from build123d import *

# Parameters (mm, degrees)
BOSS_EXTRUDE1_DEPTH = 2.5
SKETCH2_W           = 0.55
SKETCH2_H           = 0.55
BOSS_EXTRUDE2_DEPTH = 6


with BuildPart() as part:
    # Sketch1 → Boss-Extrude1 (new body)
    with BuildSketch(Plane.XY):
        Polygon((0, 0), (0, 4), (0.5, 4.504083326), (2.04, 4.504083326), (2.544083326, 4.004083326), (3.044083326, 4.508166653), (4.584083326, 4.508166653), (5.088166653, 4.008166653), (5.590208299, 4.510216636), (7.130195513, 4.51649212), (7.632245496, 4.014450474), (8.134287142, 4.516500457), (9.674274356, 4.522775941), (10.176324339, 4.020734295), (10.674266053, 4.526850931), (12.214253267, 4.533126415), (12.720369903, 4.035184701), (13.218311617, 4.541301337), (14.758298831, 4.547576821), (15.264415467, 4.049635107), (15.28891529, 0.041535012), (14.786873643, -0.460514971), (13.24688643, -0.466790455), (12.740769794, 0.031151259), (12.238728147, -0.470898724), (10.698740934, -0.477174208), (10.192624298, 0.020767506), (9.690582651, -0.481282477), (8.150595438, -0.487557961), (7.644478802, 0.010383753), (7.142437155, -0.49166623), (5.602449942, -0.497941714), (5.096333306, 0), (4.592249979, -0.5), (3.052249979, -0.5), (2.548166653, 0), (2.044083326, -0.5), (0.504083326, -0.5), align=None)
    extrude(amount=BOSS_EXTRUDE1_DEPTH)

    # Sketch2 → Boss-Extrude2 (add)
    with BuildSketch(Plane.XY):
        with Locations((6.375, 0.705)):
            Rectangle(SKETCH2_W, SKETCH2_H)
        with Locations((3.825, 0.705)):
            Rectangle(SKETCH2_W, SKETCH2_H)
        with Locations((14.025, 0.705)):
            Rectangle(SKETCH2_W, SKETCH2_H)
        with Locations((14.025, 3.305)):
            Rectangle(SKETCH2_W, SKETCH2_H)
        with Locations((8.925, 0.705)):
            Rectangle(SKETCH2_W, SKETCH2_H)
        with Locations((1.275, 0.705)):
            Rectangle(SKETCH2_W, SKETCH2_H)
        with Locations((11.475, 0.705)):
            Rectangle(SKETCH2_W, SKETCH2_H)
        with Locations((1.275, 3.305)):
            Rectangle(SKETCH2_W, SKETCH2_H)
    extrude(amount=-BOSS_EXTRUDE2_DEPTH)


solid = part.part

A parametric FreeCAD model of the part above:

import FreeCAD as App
import Part
import Sketcher

V = App.Vector
Q = App.Units.Quantity

doc = App.newDocument("Part")
body = doc.addObject("PartDesign::Body", "Body")

sketch1 = body.newObject("Sketcher::SketchObject", "Sketch")
sketch1.AttachmentSupport = (doc.getObject("XY_Plane"), [""])
sketch1.MapMode = "FlatFace"
sketch1.addGeometry([
    Part.LineSegment(V(0, 4, 0), V(0, 0, 0)),
    Part.LineSegment(V(0, 0, 0), V(0.5, -0.5, 0)),
    Part.LineSegment(V(0.5, -0.5, 0), V(2, -0.5, 0)),
    Part.LineSegment(V(2, -0.5, 0), V(2.5, 0, 0)),
    Part.LineSegment(V(2.5, 0, 0), V(3.1, -0.5, 0)),
    Part.LineSegment(V(3.1, -0.5, 0), V(4.6, -0.5, 0)),
    Part.LineSegment(V(4.6, -0.5, 0), V(5.1, 0, 0)),
    Part.LineSegment(V(5.1, 0, 0), V(5.6, -0.5, 0)),
    Part.LineSegment(V(5.6, -0.5, 0), V(7.1, -0.5, 0)),
    Part.LineSegment(V(7.1, -0.5, 0), V(7.6, 0, 0)),
    Part.LineSegment(V(7.6, 0, 0), V(8.2, -0.5, 0)),
    Part.LineSegment(V(8.2, -0.5, 0), V(9.7, -0.5, 0)),
    Part.LineSegment(V(9.7, -0.5, 0), V(10.2, 0, 0)),
    Part.LineSegment(V(10.2, 0, 0), V(10.7, -0.5, 0)),
    Part.LineSegment(V(10.7, -0.5, 0), V(12.2, -0.5, 0)),
    Part.LineSegment(V(12.2, -0.5, 0), V(12.7, 0, 0)),
    Part.LineSegment(V(12.7, 0, 0), V(13.2, -0.5, 0)),
    Part.LineSegment(V(13.2, -0.5, 0), V(14.8, -0.5, 0)),
    Part.LineSegment(V(14.8, -0.5, 0), V(15.3, 0, 0)),
    Part.LineSegment(V(15.3, 0, 0), V(15.3, 4, 0)),
    Part.LineSegment(V(15.3, 4, 0), V(14.8, 4.5, 0)),
    Part.LineSegment(V(14.8, 4.5, 0), V(13.2, 4.5, 0)),
    Part.LineSegment(V(13.2, 4.5, 0), V(12.7, 4, 0)),
    Part.LineSegment(V(12.7, 4, 0), V(12.2, 4.5, 0)),
    Part.LineSegment(V(12.2, 4.5, 0), V(10.7, 4.5, 0)),
    Part.LineSegment(V(10.7, 4.5, 0), V(10.2, 4, 0)),
    Part.LineSegment(V(10.2, 4, 0), V(9.7, 4.5, 0)),
    Part.LineSegment(V(9.7, 4.5, 0), V(8.1, 4.5, 0)),
    Part.LineSegment(V(8.1, 4.5, 0), V(7.6, 4, 0)),
    Part.LineSegment(V(7.6, 4, 0), V(7.1, 4.5, 0)),
    Part.LineSegment(V(7.1, 4.5, 0), V(5.6, 4.5, 0)),
    Part.LineSegment(V(5.6, 4.5, 0), V(5.1, 4, 0)),
    Part.LineSegment(V(5.1, 4, 0), V(4.6, 4.5, 0)),
    Part.LineSegment(V(4.6, 4.5, 0), V(3, 4.5, 0)),
    Part.LineSegment(V(3, 4.5, 0), V(2.5, 4, 0)),
    Part.LineSegment(V(2.5, 4, 0), V(2, 4.5, 0)),
    Part.LineSegment(V(2, 4.5, 0), V(0.5, 4.5, 0)),
    Part.LineSegment(V(0.5, 4.5, 0), V(0, 4, 0)),
], False)
sketch1.addConstraint([
    Sketcher.Constraint("Coincident", 0, 2, 1, 1),
    Sketcher.Constraint("Coincident", 1, 2, 2, 1),
    Sketcher.Constraint("Coincident", 2, 2, 3, 1),
    Sketcher.Constraint("Coincident", 3, 2, 4, 1),
    Sketcher.Constraint("Coincident", 4, 2, 5, 1),
    Sketcher.Constraint("Coincident", 5, 2, 6, 1),
    Sketcher.Constraint("Coincident", 6, 2, 7, 1),
    Sketcher.Constraint("Coincident", 7, 2, 8, 1),
    Sketcher.Constraint("Coincident", 8, 2, 9, 1),
    Sketcher.Constraint("Coincident", 9, 2, 10, 1),
    Sketcher.Constraint("Coincident", 10, 2, 11, 1),
    Sketcher.Constraint("Coincident", 11, 2, 12, 1),
    Sketcher.Constraint("Coincident", 12, 2, 13, 1),
    Sketcher.Constraint("Coincident", 13, 2, 14, 1),
    Sketcher.Constraint("Coincident", 14, 2, 15, 1),
    Sketcher.Constraint("Coincident", 15, 2, 16, 1),
    Sketcher.Constraint("Coincident", 16, 2, 17, 1),
    Sketcher.Constraint("Coincident", 17, 2, 18, 1),
    Sketcher.Constraint("Coincident", 18, 2, 19, 1),
    Sketcher.Constraint("Coincident", 19, 2, 20, 1),
    Sketcher.Constraint("Coincident", 20, 2, 21, 1),
    Sketcher.Constraint("Coincident", 21, 2, 22, 1),
    Sketcher.Constraint("Coincident", 22, 2, 23, 1),
    Sketcher.Constraint("Coincident", 23, 2, 24, 1),
    Sketcher.Constraint("Coincident", 24, 2, 25, 1),
    Sketcher.Constraint("Coincident", 25, 2, 26, 1),
    Sketcher.Constraint("Coincident", 26, 2, 27, 1),
    Sketcher.Constraint("Coincident", 27, 2, 28, 1),
    Sketcher.Constraint("Coincident", 28, 2, 29, 1),
    Sketcher.Constraint("Coincident", 29, 2, 30, 1),
    Sketcher.Constraint("Coincident", 30, 2, 31, 1),
    Sketcher.Constraint("Coincident", 31, 2, 32, 1),
    Sketcher.Constraint("Coincident", 32, 2, 33, 1),
    Sketcher.Constraint("Coincident", 33, 2, 34, 1),
    Sketcher.Constraint("Coincident", 34, 2, 35, 1),
    Sketcher.Constraint("Coincident", 35, 2, 36, 1),
    Sketcher.Constraint("Coincident", 36, 2, 37, 1),
    Sketcher.Constraint("Coincident", 37, 2, 0, 1),
    Sketcher.Constraint("Vertical", 0),
    Sketcher.Constraint("Horizontal", 2),
    Sketcher.Constraint("Horizontal", 5),
    Sketcher.Constraint("Horizontal", 33),
    Sketcher.Constraint("Horizontal", 36),
    Sketcher.Constraint("Coincident", 0, 2, -1, 1),
    Sketcher.Constraint("PointOnObject", 3, 2, -1),
    Sketcher.Constraint("PointOnObject", 6, 2, -1),
    Sketcher.Constraint("Parallel", 1, 4),
    Sketcher.Constraint("Parallel", 3, 6),
    Sketcher.Constraint("Parallel", 7, 10),
    Sketcher.Constraint("Parallel", 8, 11),
    Sketcher.Constraint("Parallel", 9, 12),
    Sketcher.Constraint("Parallel", 10, 13),
    Sketcher.Constraint("Parallel", 11, 14),
    Sketcher.Constraint("Parallel", 12, 15),
    Sketcher.Constraint("Parallel", 13, 16),
    Sketcher.Constraint("Parallel", 14, 17),
    Sketcher.Constraint("Parallel", 15, 18),
    Sketcher.Constraint("Parallel", 16, 20),
    Sketcher.Constraint("Parallel", 17, 21),
    Sketcher.Constraint("Perpendicular", 20, 22),
    Sketcher.Constraint("Perpendicular", 22, 23),
    Sketcher.Constraint("Parallel", 21, 24),
    Sketcher.Constraint("Perpendicular", 23, 25),
    Sketcher.Constraint("Perpendicular", 18, 26),
    Sketcher.Constraint("Parallel", 24, 27),
    Sketcher.Constraint("Perpendicular", 26, 28),
    Sketcher.Constraint("Perpendicular", 28, 29),
    Sketcher.Constraint("Parallel", 27, 30),
    Sketcher.Constraint("Perpendicular", 29, 31),
    Sketcher.Constraint("Parallel", 4, 32),
    Sketcher.Constraint("Perpendicular", 32, 34),
    Sketcher.Constraint("Perpendicular", 34, 35),
    Sketcher.Constraint("Perpendicular", 35, 37),
    Sketcher.Constraint("Horizontal", 2, 2, 4, 2),
    Sketcher.Constraint("Equal", 2, 5),
    Sketcher.Constraint("Equal", 5, 33),
    Sketcher.Constraint("Equal", 33, 36),
    Sketcher.Constraint("Equal", 1, 3),
    Sketcher.Constraint("Equal", 6, 7),
    Sketcher.Constraint("Equal", 7, 9),
    Sketcher.Constraint("Equal", 9, 10),
    Sketcher.Constraint("Equal", 8, 11),
    Sketcher.Constraint("Equal", 10, 12),
    Sketcher.Constraint("Equal", 12, 13),
    Sketcher.Constraint("Equal", 11, 14),
    Sketcher.Constraint("Equal", 13, 15),
    Sketcher.Constraint("Equal", 15, 16),
    Sketcher.Constraint("Equal", 14, 17),
    Sketcher.Constraint("Equal", 16, 18),
    Sketcher.Constraint("Equal", 18, 20),
    Sketcher.Constraint("Equal", 17, 21),
    Sketcher.Constraint("Equal", 20, 22),
    Sketcher.Constraint("Equal", 22, 23),
    Sketcher.Constraint("Equal", 21, 24),
    Sketcher.Constraint("Equal", 23, 25),
    Sketcher.Constraint("Equal", 25, 26),
    Sketcher.Constraint("Equal", 24, 27),
    Sketcher.Constraint("Equal", 26, 28),
    Sketcher.Constraint("Equal", 28, 29),
    Sketcher.Constraint("Equal", 27, 30),
    Sketcher.Constraint("Equal", 29, 31),
    Sketcher.Constraint("Equal", 31, 32),
    Sketcher.Constraint("Equal", 32, 34),
    Sketcher.Constraint("Equal", 34, 35),
    Sketcher.Constraint("Equal", 35, 37),
    Sketcher.Constraint("DistanceY", 0, 2, 0, 1, Q("4 mm")),
    Sketcher.Constraint("DistanceX", 2, 1, 2, 2, Q("1.54 mm")),
    Sketcher.Constraint("DistanceY", 1, 2, -1, 1, Q("0.5 mm")),
    Sketcher.Constraint("Distance", 1, Q("0.71 mm")),
    Sketcher.Constraint("Distance", 8, Q("1.54 mm")),
    Sketcher.Constraint("DistanceY", 14, 2, -1, 1, Q("0.470899 mm")),
    Sketcher.Constraint("DistanceX", -1, 1, 20, 2, Q("14.758299 mm")),
    Sketcher.Constraint("DistanceY", -1, 1, 21, 2, Q("4.541301 mm")),
])
pad1 = body.newObject("PartDesign::Pad", "Pad")
pad1.Profile = sketch1
pad1.Length = 2.5

sketch2 = body.newObject("Sketcher::SketchObject", "Sketch001")
sketch2.AttachmentSupport = (doc.getObject("XY_Plane"), [""])
sketch2.MapMode = "FlatFace"
sketch2.addGeometry([
    Part.LineSegment(V(6.1, 1, 0), V(6.1, 0.4, 0)),
    Part.LineSegment(V(6.1, 0.4, 0), V(6.7, 0.4, 0)),
    Part.LineSegment(V(6.7, 0.4, 0), V(6.7, 1, 0)),
    Part.LineSegment(V(6.7, 1, 0), V(6.1, 1, 0)),
    Part.LineSegment(V(3.5, 1, 0), V(3.5, 0.4, 0)),
    Part.LineSegment(V(3.5, 0.4, 0), V(4.1, 0.4, 0)),
    Part.LineSegment(V(4.1, 0.4, 0), V(4.1, 1, 0)),
    Part.LineSegment(V(4.1, 1, 0), V(3.5, 1, 0)),
    Part.LineSegment(V(13.8, 1, 0), V(13.8, 0.4, 0)),
    Part.LineSegment(V(13.8, 0.4, 0), V(14.3, 0.4, 0)),
    Part.LineSegment(V(14.3, 0.4, 0), V(14.3, 1, 0)),
    Part.LineSegment(V(14.3, 1, 0), V(13.8, 1, 0)),
    Part.LineSegment(V(13.8, 3.6, 0), V(13.8, 3, 0)),
    Part.LineSegment(V(13.8, 3, 0), V(14.3, 3, 0)),
    Part.LineSegment(V(14.3, 3, 0), V(14.3, 3.6, 0)),
    Part.LineSegment(V(14.3, 3.6, 0), V(13.8, 3.6, 0)),
    Part.LineSegment(V(8.7, 1, 0), V(8.7, 0.4, 0)),
    Part.LineSegment(V(8.7, 0.4, 0), V(9.2, 0.4, 0)),
    Part.LineSegment(V(9.2, 0.4, 0), V(9.2, 1, 0)),
    Part.LineSegment(V(9.2, 1, 0), V(8.7, 1, 0)),
    Part.LineSegment(V(1, 1, 0), V(1, 0.4, 0)),
    Part.LineSegment(V(1, 0.4, 0), V(1.6, 0.4, 0)),
    Part.LineSegment(V(1.6, 0.4, 0), V(1.6, 1, 0)),
    Part.LineSegment(V(1.6, 1, 0), V(1, 1, 0)),
    Part.LineSegment(V(11.2, 1, 0), V(11.2, 0.4, 0)),
    Part.LineSegment(V(11.2, 0.4, 0), V(11.8, 0.4, 0)),
    Part.LineSegment(V(11.8, 0.4, 0), V(11.8, 1, 0)),
    Part.LineSegment(V(11.8, 1, 0), V(11.2, 1, 0)),
    Part.LineSegment(V(1, 3.6, 0), V(1, 3, 0)),
    Part.LineSegment(V(1, 3, 0), V(1.6, 3, 0)),
    Part.LineSegment(V(1.6, 3, 0), V(1.6, 3.6, 0)),
    Part.LineSegment(V(1.6, 3.6, 0), V(1, 3.6, 0)),
], False)
sketch2.addConstraint([
    Sketcher.Constraint("Coincident", 0, 2, 1, 1),
    Sketcher.Constraint("Coincident", 1, 2, 2, 1),
    Sketcher.Constraint("Coincident", 2, 2, 3, 1),
    Sketcher.Constraint("Coincident", 3, 2, 0, 1),
    Sketcher.Constraint("Coincident", 4, 2, 5, 1),
    Sketcher.Constraint("Coincident", 5, 2, 6, 1),
    Sketcher.Constraint("Coincident", 6, 2, 7, 1),
    Sketcher.Constraint("Coincident", 7, 2, 4, 1),
    Sketcher.Constraint("Coincident", 8, 2, 9, 1),
    Sketcher.Constraint("Coincident", 9, 2, 10, 1),
    Sketcher.Constraint("Coincident", 10, 2, 11, 1),
    Sketcher.Constraint("Coincident", 11, 2, 8, 1),
    Sketcher.Constraint("Coincident", 12, 2, 13, 1),
    Sketcher.Constraint("Coincident", 13, 2, 14, 1),
    Sketcher.Constraint("Coincident", 14, 2, 15, 1),
    Sketcher.Constraint("Coincident", 15, 2, 12, 1),
    Sketcher.Constraint("Coincident", 16, 2, 17, 1),
    Sketcher.Constraint("Coincident", 17, 2, 18, 1),
    Sketcher.Constraint("Coincident", 18, 2, 19, 1),
    Sketcher.Constraint("Coincident", 19, 2, 16, 1),
    Sketcher.Constraint("Coincident", 20, 2, 21, 1),
    Sketcher.Constraint("Coincident", 21, 2, 22, 1),
    Sketcher.Constraint("Coincident", 22, 2, 23, 1),
    Sketcher.Constraint("Coincident", 23, 2, 20, 1),
    Sketcher.Constraint("Coincident", 24, 2, 25, 1),
    Sketcher.Constraint("Coincident", 25, 2, 26, 1),
    Sketcher.Constraint("Coincident", 26, 2, 27, 1),
    Sketcher.Constraint("Coincident", 27, 2, 24, 1),
    Sketcher.Constraint("Coincident", 28, 2, 29, 1),
    Sketcher.Constraint("Coincident", 29, 2, 30, 1),
    Sketcher.Constraint("Coincident", 30, 2, 31, 1),
    Sketcher.Constraint("Coincident", 31, 2, 28, 1),
    Sketcher.Constraint("Vertical", 0),
    Sketcher.Constraint("Horizontal", 1),
    Sketcher.Constraint("Vertical", 2),
    Sketcher.Constraint("Horizontal", 3),
    Sketcher.Constraint("Vertical", 4),
    Sketcher.Constraint("Horizontal", 5),
    Sketcher.Constraint("Vertical", 6),
    Sketcher.Constraint("Horizontal", 7),
    Sketcher.Constraint("Vertical", 8),
    Sketcher.Constraint("Horizontal", 9),
    Sketcher.Constraint("Vertical", 10),
    Sketcher.Constraint("Horizontal", 11),
    Sketcher.Constraint("Vertical", 12),
    Sketcher.Constraint("Horizontal", 13),
    Sketcher.Constraint("Vertical", 14),
    Sketcher.Constraint("Horizontal", 15),
    Sketcher.Constraint("Vertical", 16),
    Sketcher.Constraint("Horizontal", 17),
    Sketcher.Constraint("Vertical", 18),
    Sketcher.Constraint("Horizontal", 19),
    Sketcher.Constraint("Vertical", 20),
    Sketcher.Constraint("Horizontal", 21),
    Sketcher.Constraint("Vertical", 22),
    Sketcher.Constraint("Horizontal", 23),
    Sketcher.Constraint("Vertical", 24),
    Sketcher.Constraint("Horizontal", 25),
    Sketcher.Constraint("Vertical", 26),
    Sketcher.Constraint("Horizontal", 27),
    Sketcher.Constraint("Vertical", 28),
    Sketcher.Constraint("Horizontal", 29),
    Sketcher.Constraint("Vertical", 30),
    Sketcher.Constraint("Horizontal", 31),
    Sketcher.Constraint("Horizontal", 1, 2, 4, 2),
    Sketcher.Constraint("Horizontal", 3, 2, 6, 2),
    Sketcher.Constraint("Horizontal", 5, 2, 8, 2),
    Sketcher.Constraint("Horizontal", 7, 2, 10, 2),
    Sketcher.Constraint("Horizontal", 9, 2, 16, 2),
    Sketcher.Constraint("Horizontal", 11, 2, 18, 2),
    Sketcher.Constraint("Horizontal", 17, 2, 20, 2),
    Sketcher.Constraint("Horizontal", 19, 2, 22, 2),
    Sketcher.Constraint("Horizontal", 21, 2, 24, 2),
    Sketcher.Constraint("Horizontal", 23, 2, 26, 2),
    Sketcher.Constraint("Horizontal", 13, 2, 28, 2),
    Sketcher.Constraint("Horizontal", 15, 2, 30, 2),
    Sketcher.Constraint("Vertical", 11, 2, 12, 2),
    Sketcher.Constraint("Vertical", 10, 2, 13, 2),
    Sketcher.Constraint("Vertical", 23, 2, 28, 2),
    Sketcher.Constraint("Vertical", 22, 2, 29, 2),
    Sketcher.Constraint("Equal", 3, 5),
    Sketcher.Constraint("Equal", 7, 9),
    Sketcher.Constraint("Equal", 15, 17),
    Sketcher.Constraint("Equal", 19, 21),
    Sketcher.Constraint("Equal", 23, 25),
    Sketcher.Constraint("Equal", 31, 0),
    Sketcher.Constraint("Equal", 10, 12),
    Sketcher.Constraint("DistanceX", -1, 1, 20, 2, Q("1 mm")),
    Sketcher.Constraint("DistanceX", 5, 2, 0, 2, Q("2 mm")),
    Sketcher.Constraint("DistanceX", 1, 2, 16, 2, Q("2 mm")),
    Sketcher.Constraint("DistanceX", 21, 2, 4, 2, Q("2 mm")),
    Sketcher.Constraint("DistanceX", 17, 2, 24, 2, Q("2 mm")),
    Sketcher.Constraint("DistanceX", 25, 2, 8, 2, Q("2 mm")),
    Sketcher.Constraint("DistanceX", 1, 1, 1, 2, Q("0.55 mm")),
    Sketcher.Constraint("DistanceY", 8, 2, 12, 2, Q("2.6 mm")),
    Sketcher.Constraint("DistanceY", -1, 1, 0, 2, Q("0.43 mm")),
])
pad2 = body.newObject("PartDesign::Pad", "Pad001")
pad2.Profile = sketch2
pad2.Length = 6
pad2.Reversed = True

doc.recompute()
